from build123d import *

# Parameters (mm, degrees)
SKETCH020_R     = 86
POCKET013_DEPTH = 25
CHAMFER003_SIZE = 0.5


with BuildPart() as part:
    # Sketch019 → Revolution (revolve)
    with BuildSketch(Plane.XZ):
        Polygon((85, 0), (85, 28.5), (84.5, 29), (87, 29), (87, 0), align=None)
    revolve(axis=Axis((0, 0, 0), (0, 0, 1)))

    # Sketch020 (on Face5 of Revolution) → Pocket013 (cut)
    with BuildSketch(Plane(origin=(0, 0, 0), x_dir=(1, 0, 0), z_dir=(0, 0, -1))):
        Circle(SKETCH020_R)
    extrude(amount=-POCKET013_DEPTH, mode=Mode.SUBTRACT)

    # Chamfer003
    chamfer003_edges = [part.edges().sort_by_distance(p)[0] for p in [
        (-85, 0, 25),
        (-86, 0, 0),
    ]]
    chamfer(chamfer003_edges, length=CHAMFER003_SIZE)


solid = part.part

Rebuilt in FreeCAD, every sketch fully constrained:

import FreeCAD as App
import Part
import Sketcher
from FreeCAD import Vector
Q = App.Units.Quantity


def edges_at(feature, points):
    """Names of the edges that pass closest to the given points."""
    edges = feature.Shape.Edges
    near = lambda p: min(range(len(edges)), key=lambda i: edges[i].distToShape(Part.Vertex(*p))[0])
    return sorted({f"Edge{near(p) + 1}" for p in points})

doc = App.newDocument("Part")
body = doc.addObject("PartDesign::Body", "Body")

sketch1 = body.newObject("Sketcher::SketchObject", "Sketch")
sketch1.AttachmentSupport = (doc.getObject("XZ_Plane"), [""])
sketch1.MapMode = "FlatFace"
sketch1.addGeometry([
    Part.LineSegment(Vector(85, 28.5, 0), Vector(85, 0, 0)),
    Part.LineSegment(Vector(85, 0, 0), Vector(87, 0, 0)),
    Part.LineSegment(Vector(87, 0, 0), Vector(87, 29, 0)),
    Part.LineSegment(Vector(87, 29, 0), Vector(84.5, 29, 0)),
    Part.LineSegment(Vector(84.5, 29, 0), Vector(85, 28.5, 0)),
], False)
sketch1.addConstraint([
    Sketcher.Constraint("Coincident", 0, 2, 1, 1),
    Sketcher.Constraint("Coincident", 1, 2, 2, 1),
    Sketcher.Constraint("Coincident", 2, 2, 3, 1),
    Sketcher.Constraint("Coincident", 3, 2, 4, 1),
    Sketcher.Constraint("Coincident", 4, 2, 0, 1),
    Sketcher.Constraint("Vertical", 0),
    Sketcher.Constraint("Horizontal", 1),
    Sketcher.Constraint("Vertical", 2),
    Sketcher.Constraint("Horizontal", 3),
    Sketcher.Constraint("PointOnObject", 0, 2, -1),
    Sketcher.Constraint("DistanceX", 1, 1, 1, 2, 2.0),
    Sketcher.Constraint("DistanceY", 2, 1, 2, 2, 29.0),
    Sketcher.Constraint("Angle", 4, Q("-45 deg")),
    Sketcher.Constraint("DistanceX", 3, 2, 3, 1, 2.5),
    Sketcher.Constraint("DistanceX", -1, 1, 0, 2, 85.0),
])
revolution = body.newObject("PartDesign::Revolution", "Revolution")
revolution.Profile = sketch1
revolution.ReferenceAxis = (sketch1, ["V_Axis"])
revolution.Angle = 360

sketch2 = body.newObject("Sketcher::SketchObject", "Sketch001")
sketch2.AttachmentSupport = (doc.getObject("XY_Plane"), [""])
sketch2.MapMode = "FlatFace"
sketch2.addGeometry(Part.Circle(Vector(0, 0, 0), Vector(0, 0, 1), 86), False)
sketch2.addConstraint([
    Sketcher.Constraint("Coincident", 0, 3, -1, 1),
    Sketcher.Constraint("Diameter", 0, 172.0),
])
pocket1 = body.newObject("PartDesign::Pocket", "Pocket")
pocket1.Profile = sketch2
pocket1.Length = 25
pocket1.Reversed = True
doc.recompute()

chamfer = body.newObject("PartDesign::Chamfer", "Chamfer")
chamfer.Base = (pocket1, edges_at(pocket1, [(-85, 0, 25), (-86, 0, 0)]))
chamfer.Size = 0.5

doc.recompute()
